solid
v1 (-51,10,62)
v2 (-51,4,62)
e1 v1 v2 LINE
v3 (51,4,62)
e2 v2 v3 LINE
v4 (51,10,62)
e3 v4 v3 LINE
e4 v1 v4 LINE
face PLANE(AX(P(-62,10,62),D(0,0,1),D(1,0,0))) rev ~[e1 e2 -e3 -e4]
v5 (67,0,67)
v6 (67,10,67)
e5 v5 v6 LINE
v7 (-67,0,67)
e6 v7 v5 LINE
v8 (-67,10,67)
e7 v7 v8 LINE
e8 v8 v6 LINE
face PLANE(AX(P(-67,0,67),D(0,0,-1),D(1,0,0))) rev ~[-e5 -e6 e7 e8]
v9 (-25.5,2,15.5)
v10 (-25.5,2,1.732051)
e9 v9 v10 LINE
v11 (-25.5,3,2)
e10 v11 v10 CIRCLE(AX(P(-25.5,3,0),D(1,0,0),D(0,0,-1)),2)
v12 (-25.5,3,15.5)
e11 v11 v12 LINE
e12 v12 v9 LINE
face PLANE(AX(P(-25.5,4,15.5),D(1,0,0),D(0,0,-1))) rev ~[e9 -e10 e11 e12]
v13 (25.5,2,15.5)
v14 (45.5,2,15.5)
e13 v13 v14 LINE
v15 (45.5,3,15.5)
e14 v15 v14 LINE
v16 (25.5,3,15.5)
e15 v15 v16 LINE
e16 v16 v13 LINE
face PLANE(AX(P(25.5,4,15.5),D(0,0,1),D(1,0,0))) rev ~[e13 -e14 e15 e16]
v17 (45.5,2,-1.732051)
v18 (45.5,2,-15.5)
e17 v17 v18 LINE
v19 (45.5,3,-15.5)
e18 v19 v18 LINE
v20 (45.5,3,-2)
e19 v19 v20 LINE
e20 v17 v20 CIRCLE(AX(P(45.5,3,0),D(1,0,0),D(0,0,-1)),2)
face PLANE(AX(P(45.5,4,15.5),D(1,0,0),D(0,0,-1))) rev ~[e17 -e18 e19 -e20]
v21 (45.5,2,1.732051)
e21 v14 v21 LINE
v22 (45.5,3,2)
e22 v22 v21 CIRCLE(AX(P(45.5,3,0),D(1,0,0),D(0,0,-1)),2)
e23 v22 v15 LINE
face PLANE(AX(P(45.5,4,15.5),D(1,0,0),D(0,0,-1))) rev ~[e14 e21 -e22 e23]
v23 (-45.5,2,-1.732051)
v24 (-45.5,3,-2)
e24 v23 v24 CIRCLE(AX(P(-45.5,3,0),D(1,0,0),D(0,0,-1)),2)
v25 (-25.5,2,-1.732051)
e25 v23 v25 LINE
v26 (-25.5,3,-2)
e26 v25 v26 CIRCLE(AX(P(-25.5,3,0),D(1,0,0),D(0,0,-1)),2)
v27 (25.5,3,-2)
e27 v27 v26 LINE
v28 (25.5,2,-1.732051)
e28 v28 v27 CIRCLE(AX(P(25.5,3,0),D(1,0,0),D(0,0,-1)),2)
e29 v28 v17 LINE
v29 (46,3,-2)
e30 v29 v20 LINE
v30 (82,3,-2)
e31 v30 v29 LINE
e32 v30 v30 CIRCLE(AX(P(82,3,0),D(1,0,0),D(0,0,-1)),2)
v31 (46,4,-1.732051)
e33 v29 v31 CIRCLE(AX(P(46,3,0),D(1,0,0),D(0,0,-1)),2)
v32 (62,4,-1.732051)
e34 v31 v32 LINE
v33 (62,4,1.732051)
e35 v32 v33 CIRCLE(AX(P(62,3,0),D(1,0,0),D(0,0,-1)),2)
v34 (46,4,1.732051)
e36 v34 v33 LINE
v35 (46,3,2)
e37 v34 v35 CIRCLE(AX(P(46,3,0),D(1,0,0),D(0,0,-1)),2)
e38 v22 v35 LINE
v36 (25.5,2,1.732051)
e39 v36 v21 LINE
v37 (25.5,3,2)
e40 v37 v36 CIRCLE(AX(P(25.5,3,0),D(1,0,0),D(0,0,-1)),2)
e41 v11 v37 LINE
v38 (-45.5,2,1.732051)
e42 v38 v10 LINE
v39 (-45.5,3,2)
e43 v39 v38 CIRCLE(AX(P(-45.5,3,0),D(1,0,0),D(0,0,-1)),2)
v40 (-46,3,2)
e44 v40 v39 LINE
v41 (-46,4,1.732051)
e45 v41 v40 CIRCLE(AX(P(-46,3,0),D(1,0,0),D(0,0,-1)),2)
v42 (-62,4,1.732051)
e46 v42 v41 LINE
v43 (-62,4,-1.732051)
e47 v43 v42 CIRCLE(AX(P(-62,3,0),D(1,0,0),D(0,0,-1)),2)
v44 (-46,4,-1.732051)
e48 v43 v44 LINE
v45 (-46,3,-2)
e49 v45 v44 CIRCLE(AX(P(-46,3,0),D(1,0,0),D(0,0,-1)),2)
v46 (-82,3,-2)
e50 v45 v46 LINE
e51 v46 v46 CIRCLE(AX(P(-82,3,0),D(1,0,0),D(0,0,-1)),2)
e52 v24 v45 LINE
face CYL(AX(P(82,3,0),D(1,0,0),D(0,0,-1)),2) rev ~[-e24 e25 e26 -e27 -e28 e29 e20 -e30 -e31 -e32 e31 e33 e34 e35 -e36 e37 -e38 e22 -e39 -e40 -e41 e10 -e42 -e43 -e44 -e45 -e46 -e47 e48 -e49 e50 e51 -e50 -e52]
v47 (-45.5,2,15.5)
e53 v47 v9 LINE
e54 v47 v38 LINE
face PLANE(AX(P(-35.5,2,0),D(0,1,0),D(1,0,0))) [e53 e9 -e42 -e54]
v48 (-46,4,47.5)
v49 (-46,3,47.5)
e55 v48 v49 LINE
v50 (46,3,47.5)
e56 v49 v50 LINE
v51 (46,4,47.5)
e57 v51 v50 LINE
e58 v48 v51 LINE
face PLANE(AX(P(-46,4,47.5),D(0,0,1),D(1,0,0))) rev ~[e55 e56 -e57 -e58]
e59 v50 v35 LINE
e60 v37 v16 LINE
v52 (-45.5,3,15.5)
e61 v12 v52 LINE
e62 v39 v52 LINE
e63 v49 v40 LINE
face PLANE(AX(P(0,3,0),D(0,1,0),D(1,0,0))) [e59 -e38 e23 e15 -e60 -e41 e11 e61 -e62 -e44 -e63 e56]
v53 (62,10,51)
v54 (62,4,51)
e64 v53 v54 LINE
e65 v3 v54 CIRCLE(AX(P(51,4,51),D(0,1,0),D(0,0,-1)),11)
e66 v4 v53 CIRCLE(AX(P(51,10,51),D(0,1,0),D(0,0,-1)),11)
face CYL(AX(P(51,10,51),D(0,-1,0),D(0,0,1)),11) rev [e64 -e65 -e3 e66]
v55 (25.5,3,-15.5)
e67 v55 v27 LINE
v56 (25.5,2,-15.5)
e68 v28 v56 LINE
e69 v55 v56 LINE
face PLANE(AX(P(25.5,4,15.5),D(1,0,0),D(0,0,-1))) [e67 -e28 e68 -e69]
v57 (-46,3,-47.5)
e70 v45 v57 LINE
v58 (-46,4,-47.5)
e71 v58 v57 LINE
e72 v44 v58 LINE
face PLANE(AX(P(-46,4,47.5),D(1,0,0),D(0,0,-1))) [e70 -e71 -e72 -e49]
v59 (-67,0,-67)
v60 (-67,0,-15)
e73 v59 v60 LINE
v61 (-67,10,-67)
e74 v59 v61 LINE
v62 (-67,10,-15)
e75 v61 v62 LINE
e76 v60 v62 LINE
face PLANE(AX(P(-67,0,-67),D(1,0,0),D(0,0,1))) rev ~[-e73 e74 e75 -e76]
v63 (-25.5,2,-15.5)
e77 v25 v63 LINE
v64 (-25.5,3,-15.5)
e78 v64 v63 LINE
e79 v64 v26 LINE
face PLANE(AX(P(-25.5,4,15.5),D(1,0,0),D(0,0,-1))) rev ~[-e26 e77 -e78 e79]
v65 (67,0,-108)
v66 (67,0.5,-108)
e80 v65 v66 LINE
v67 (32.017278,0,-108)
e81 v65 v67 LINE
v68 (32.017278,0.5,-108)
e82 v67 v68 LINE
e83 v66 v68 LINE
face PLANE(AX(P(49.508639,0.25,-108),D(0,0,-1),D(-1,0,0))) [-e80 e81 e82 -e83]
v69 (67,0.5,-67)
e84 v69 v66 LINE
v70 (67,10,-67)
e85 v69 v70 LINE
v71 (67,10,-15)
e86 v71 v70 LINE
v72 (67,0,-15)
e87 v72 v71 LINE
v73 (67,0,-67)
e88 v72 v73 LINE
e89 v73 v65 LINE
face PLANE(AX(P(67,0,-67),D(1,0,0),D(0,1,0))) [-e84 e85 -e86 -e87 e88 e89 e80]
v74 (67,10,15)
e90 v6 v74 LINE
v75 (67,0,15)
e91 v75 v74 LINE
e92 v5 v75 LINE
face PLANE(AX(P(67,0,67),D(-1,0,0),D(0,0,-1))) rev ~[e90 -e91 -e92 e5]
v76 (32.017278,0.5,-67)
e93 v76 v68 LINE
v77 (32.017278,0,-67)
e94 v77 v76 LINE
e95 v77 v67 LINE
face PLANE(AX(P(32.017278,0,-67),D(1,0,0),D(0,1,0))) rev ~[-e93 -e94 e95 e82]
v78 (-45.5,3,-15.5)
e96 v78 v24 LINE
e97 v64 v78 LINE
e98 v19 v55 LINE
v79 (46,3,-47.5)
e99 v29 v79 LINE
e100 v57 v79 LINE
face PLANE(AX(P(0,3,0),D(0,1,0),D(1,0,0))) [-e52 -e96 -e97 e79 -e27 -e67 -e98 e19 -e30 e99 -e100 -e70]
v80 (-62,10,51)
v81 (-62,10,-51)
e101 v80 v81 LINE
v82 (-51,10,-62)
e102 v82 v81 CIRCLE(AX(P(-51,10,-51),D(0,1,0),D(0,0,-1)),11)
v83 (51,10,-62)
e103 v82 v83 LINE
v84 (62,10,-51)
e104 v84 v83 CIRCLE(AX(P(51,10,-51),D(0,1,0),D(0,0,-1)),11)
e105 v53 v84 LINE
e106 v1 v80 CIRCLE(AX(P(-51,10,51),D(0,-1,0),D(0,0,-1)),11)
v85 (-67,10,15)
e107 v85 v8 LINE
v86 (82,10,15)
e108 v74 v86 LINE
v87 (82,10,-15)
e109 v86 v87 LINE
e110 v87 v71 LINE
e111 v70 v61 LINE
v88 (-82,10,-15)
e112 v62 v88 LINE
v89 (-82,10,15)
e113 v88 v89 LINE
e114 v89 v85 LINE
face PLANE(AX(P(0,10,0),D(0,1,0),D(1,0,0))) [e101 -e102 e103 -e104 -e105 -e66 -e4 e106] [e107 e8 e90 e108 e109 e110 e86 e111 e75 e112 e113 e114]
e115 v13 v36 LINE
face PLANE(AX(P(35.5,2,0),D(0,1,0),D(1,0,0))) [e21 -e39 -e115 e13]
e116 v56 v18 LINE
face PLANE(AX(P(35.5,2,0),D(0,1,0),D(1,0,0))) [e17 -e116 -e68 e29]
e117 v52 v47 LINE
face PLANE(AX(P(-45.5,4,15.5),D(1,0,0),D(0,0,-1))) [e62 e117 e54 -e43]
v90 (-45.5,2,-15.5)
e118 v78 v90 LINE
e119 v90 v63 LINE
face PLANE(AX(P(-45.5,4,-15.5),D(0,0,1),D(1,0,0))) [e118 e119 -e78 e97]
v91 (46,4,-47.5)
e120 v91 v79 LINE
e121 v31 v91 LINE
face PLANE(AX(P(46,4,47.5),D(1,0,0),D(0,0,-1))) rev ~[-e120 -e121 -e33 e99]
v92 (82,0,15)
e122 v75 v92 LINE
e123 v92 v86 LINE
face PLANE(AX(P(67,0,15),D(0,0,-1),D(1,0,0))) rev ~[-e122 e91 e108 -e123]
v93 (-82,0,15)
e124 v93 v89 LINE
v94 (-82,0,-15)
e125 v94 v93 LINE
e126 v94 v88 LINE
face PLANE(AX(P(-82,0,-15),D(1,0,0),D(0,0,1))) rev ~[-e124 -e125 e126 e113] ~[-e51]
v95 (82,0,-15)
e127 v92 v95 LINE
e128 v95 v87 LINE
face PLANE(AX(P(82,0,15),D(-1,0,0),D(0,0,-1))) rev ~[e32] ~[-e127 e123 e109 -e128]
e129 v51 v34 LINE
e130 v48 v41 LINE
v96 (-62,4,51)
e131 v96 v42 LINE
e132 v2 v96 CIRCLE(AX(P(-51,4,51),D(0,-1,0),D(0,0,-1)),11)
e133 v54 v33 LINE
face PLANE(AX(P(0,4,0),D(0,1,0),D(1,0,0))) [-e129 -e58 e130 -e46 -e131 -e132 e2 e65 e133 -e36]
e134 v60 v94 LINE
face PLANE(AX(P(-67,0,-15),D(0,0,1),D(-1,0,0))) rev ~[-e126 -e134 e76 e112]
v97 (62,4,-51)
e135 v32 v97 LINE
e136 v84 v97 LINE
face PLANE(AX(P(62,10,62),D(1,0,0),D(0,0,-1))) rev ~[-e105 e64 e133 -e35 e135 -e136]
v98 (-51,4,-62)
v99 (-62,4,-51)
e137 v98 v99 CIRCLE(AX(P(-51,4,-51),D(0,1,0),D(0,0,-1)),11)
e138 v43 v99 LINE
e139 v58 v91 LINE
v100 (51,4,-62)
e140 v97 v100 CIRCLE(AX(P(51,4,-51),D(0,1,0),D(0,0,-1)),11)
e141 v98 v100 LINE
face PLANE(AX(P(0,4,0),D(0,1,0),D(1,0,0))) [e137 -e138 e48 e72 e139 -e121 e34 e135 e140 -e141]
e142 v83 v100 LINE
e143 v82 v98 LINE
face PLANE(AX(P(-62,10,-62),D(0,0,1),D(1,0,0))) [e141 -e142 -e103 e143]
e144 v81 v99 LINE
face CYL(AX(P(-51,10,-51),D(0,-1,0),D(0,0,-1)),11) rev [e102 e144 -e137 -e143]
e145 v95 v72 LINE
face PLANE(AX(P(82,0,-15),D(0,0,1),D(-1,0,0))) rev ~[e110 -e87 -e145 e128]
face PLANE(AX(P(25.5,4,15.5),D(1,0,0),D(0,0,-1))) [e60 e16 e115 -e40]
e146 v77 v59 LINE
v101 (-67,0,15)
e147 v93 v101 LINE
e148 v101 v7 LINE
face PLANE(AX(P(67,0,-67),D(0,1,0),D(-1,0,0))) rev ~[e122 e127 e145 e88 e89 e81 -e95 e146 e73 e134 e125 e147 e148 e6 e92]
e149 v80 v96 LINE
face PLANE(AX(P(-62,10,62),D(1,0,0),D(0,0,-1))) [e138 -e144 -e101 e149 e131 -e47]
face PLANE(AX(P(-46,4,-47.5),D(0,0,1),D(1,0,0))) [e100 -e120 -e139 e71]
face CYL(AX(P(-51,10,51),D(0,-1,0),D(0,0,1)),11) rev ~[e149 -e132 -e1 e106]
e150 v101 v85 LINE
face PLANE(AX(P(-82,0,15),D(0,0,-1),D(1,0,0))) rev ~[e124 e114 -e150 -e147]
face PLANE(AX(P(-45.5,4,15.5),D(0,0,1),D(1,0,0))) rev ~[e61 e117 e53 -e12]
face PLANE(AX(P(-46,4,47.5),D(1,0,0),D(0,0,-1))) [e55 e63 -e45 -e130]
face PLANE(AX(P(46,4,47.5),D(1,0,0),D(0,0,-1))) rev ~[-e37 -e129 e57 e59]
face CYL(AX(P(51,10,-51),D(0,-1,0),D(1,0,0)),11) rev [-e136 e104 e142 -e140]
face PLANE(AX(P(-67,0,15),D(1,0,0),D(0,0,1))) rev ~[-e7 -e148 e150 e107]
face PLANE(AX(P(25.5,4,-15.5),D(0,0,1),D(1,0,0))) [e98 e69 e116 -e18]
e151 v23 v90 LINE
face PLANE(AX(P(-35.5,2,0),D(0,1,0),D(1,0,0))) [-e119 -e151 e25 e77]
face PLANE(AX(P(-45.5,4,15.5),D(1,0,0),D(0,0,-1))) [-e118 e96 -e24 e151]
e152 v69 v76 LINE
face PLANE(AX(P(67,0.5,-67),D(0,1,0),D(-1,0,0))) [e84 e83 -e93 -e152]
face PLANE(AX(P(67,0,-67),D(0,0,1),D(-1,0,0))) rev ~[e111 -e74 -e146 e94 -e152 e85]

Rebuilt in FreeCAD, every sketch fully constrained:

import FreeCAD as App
import Part
import Sketcher
from FreeCAD import Vector
Q = App.Units.Quantity


def edges_at(feature, points):
    """Names of the edges that pass closest to the given points."""
    edges = feature.Shape.Edges
    near = lambda p: min(range(len(edges)), key=lambda i: edges[i].distToShape(Part.Vertex(*p))[0])
    return sorted({f"Edge{near(p) + 1}" for p in points})


def add_polygon(sketch, points):
    """Adds a closed chain of lines whose ends are joined by coincident constraints."""
    first, n = sketch.GeometryCount, len(points)
    for a, b in zip(points, points[1:] + points[:1]):
        sketch.addGeometry(Part.LineSegment(App.Vector(*a, 0), App.Vector(*b, 0)), False)
    for i in range(n):
        sketch.addConstraint(Sketcher.Constraint("Coincident", first + i, 2, first + (i + 1) % n, 1))

doc = App.newDocument("Part")
body = doc.addObject("PartDesign::Body", "Body")

sketch1 = body.newObject("Sketcher::SketchObject", "Sketch")
sketch1.AttachmentSupport = (doc.getObject("XZ_Plane"), [""])
sketch1.MapMode = "FlatFace"
add_polygon(sketch1, [(-67, 15), (-67, 67), (67, 67), (67, 15), (82, 15), (82, -15), (67, -15), (67, -67), (-67, -67), (-67, -15), (-82, -15), (-82, 15)])
sketch1.addConstraint([
    Sketcher.Constraint("Vertical", 0),
    Sketcher.Constraint("Horizontal", 1),
    Sketcher.Constraint("Vertical", 2),
    Sketcher.Constraint("Horizontal", 3),
    Sketcher.Constraint("Vertical", 4),
    Sketcher.Constraint("Horizontal", 5),
    Sketcher.Constraint("Vertical", 6),
    Sketcher.Constraint("Horizontal", 7),
    Sketcher.Constraint("Vertical", 8),
    Sketcher.Constraint("Horizontal", 9),
    Sketcher.Constraint("Vertical", 10),
    Sketcher.Constraint("Horizontal", 11),
    Sketcher.Constraint("Symmetric", 0, 2, 6, 2, -1, 1),
    Sketcher.Constraint("Symmetric", 2, 2, 8, 2, -1, 1),
    Sketcher.Constraint("Symmetric", 4, 2, 10, 2, -1, 1),
    Sketcher.Constraint("Symmetric", 5, 2, 8, 2, -2),
    Sketcher.Constraint("DistanceX", 1, 1, 1, 2, Q("134 mm")),
    Sketcher.Constraint("DistanceX", 3, 1, 3, 2, Q("15 mm")),
    Sketcher.Constraint("DistanceY", 0, 1, 0, 2, Q("52 mm")),
    Sketcher.Constraint("DistanceY", 4, 2, 4, 1, Q("30 mm")),
])
pad1 = body.newObject("PartDesign::Pad", "Pad")
pad1.Profile = sketch1
pad1.Length = 10
pad1.Reversed = True

sketch2 = body.newObject("Sketcher::SketchObject", "Sketch001")
sketch2.AttachmentSupport = (doc.getObject("YZ_Plane"), [""])
sketch2.MapMode = "FlatFace"
sketch2.AttachmentOffset = App.Placement(Vector(0, 0, 82), App.Rotation())
sketch2.addGeometry(Part.Circle(Vector(3, 0, 0), Vector(0, 0, 1), 2), False)
sketch2.addConstraint([
    Sketcher.Constraint("PointOnObject", 0, 3, -1),
    Sketcher.Constraint("Diameter", 0, Q("4 mm")),
    Sketcher.Constraint("DistanceX", -1, 1, 0, 3, Q("3 mm")),
])
pocket1 = body.newObject("PartDesign::Pocket", "Pocket")
pocket1.Profile = sketch2
pocket1.Length = 181

sketch3 = body.newObject("Sketcher::SketchObject", "Sketch002")
sketch3.AttachmentSupport = (doc.getObject("XZ_Plane"), [""])
sketch3.MapMode = "FlatFace"
sketch3.AttachmentOffset = App.Placement(Vector(0, 0, -10), App.Rotation())
add_polygon(sketch3, [(-62, -62), (-62, 62), (62, 62), (62, -62)])
sketch3.addConstraint([
    Sketcher.Constraint("Vertical", 0),
    Sketcher.Constraint("Horizontal", 1),
    Sketcher.Constraint("Vertical", 2),
    Sketcher.Constraint("Horizontal", 3),
    Sketcher.Constraint("Symmetric", 0, 2, 2, 2, -1, 1),
    Sketcher.Constraint("Equal", 3, 0),
    Sketcher.Constraint("DistanceX", 1, 1, 1, 2, Q("124 mm")),
])
pocket2 = body.newObject("PartDesign::Pocket", "Pocket001")
pocket2.Profile = sketch3
pocket2.Length = 6
pocket2.Reversed = True

sketch4 = body.newObject("Sketcher::SketchObject", "Sketch003")
sketch4.AttachmentSupport = (doc.getObject("XZ_Plane"), [""])
sketch4.MapMode = "FlatFace"
sketch4.AttachmentOffset = App.Placement(Vector(0, 0, -4), App.Rotation())
add_polygon(sketch4, [(26, -16), (26, 16), (46, 16), (46, -16)])
add_polygon(sketch4, [(-46, -16), (-46, 16), (-26, 16), (-26, -16)])
sketch4.addConstraint([
    Sketcher.Constraint("Vertical", 0),
    Sketcher.Constraint("Horizontal", 1),
    Sketcher.Constraint("Vertical", 2),
    Sketcher.Constraint("Horizontal", 3),
    Sketcher.Constraint("Vertical", 4),
    Sketcher.Constraint("Horizontal", 5),
    Sketcher.Constraint("Vertical", 6),
    Sketcher.Constraint("Horizontal", 7),
    Sketcher.Constraint("Symmetric", 2, 2, 4, 2, -1, 1),
    Sketcher.Constraint("Symmetric", 0, 2, 6, 2, -1, 1),
    Sketcher.Constraint("Horizontal", 1, 2, 4, 2),
    Sketcher.Constraint("DistanceX", 1, 1, 1, 2, Q("20 mm")),
    Sketcher.Constraint("DistanceY", 0, 1, 0, 2, Q("31 mm")),
    Sketcher.Constraint("DistanceX", 4, 2, 0, 2, Q("71 mm")),
])
pocket3 = body.newObject("PartDesign::Pocket", "Pocket002")
pocket3.Profile = sketch4
pocket3.Length = 2
pocket3.Reversed = True

sketch5 = body.newObject("Sketcher::SketchObject", "Sketch004")
sketch5.AttachmentSupport = (doc.getObject("XZ_Plane"), [""])
sketch5.MapMode = "FlatFace"
sketch5.AttachmentOffset = App.Placement(Vector(0, 0, -4), App.Rotation())
add_polygon(sketch5, [(-46, -48), (-46, 48), (46, 48), (46, -48)])
sketch5.addConstraint([
    Sketcher.Constraint("Vertical", 0),
    Sketcher.Constraint("Horizontal", 1),
    Sketcher.Constraint("Vertical", 2),
    Sketcher.Constraint("Horizontal", 3),
    Sketcher.Constraint("Symmetric", 0, 2, 2, 2, -1, 1),
    Sketcher.Constraint("DistanceX", 1, 1, 1, 2, Q("92 mm")),
    Sketcher.Constraint("DistanceY", 0, 1, 0, 2, Q("95 mm")),
])
pocket4 = body.newObject("PartDesign::Pocket", "Pocket003")
pocket4.Profile = sketch5
pocket4.Length = 1
pocket4.Reversed = True
doc.recompute()

fillet = body.newObject("PartDesign::Fillet", "Fillet")
fillet.Base = (pocket4, edges_at(pocket4, [
    (62, 7, -62),
    (-62, 7, 62),
    (62, 7, 62),
    (-62, 7, -62),
]))
fillet.Radius = 11

sketch6 = body.newObject("Sketcher::SketchObject", "Sketch005")
sketch6.AttachmentSupport = (doc.getObject("XY_Plane"), [""])
sketch6.MapMode = "FlatFace"
sketch6.AttachmentOffset = App.Placement(Vector(0, 0, -67), App.Rotation())
add_polygon(sketch6, [(67, 0.5), (67, 0), (32, 0), (32, 0.5)])
sketch6.addConstraint([
    Sketcher.Constraint("Vertical", 0),
    Sketcher.Constraint("Horizontal", 1),
    Sketcher.Constraint("Vertical", 2),
    Sketcher.Constraint("Horizontal", 3),
    Sketcher.Constraint("PointOnObject", 0, 2, -1),
    Sketcher.Constraint("DistanceY", 0, 2, 0, 1, Q("0.5 mm")),
    Sketcher.Constraint("DistanceX", -1, 1, 0, 2, Q("67 mm")),
    Sketcher.Constraint("DistanceX", 1, 2, 1, 1, Q("34.982722 mm")),
])
pad2 = body.newObject("PartDesign::Pad", "Pad001")
pad2.Profile = sketch6
pad2.Length = 41
pad2.Reversed = True

doc.recompute()
